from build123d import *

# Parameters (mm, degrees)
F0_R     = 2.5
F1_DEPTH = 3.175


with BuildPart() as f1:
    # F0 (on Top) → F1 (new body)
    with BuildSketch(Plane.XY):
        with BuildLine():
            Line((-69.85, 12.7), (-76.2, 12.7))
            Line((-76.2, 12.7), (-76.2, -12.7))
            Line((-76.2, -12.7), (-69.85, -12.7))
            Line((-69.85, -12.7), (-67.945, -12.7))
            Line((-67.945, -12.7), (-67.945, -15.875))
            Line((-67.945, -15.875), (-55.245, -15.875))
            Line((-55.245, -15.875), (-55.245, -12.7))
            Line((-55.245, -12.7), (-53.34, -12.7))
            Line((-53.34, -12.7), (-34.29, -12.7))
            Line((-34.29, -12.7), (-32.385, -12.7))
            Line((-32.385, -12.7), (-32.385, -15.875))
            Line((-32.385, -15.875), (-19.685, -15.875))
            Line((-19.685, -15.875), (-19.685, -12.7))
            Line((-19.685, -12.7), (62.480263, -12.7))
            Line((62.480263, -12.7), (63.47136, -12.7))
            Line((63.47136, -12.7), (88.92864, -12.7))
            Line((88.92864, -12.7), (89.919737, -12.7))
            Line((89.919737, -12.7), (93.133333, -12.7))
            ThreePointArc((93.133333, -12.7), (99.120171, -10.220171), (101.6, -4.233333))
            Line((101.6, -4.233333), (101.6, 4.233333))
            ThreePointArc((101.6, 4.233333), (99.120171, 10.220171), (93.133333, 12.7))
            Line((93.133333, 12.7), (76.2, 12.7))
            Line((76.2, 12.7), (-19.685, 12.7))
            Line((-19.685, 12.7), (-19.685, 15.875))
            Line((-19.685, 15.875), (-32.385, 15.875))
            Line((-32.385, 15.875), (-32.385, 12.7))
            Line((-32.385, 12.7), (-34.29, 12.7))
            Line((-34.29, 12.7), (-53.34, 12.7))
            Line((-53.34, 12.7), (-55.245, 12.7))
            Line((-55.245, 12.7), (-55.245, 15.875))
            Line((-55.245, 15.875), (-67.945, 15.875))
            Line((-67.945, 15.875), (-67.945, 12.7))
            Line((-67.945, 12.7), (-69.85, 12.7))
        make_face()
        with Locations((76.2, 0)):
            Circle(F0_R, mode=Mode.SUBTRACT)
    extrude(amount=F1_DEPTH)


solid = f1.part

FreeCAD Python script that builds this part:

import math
import FreeCAD as App
import Part
import Sketcher
Q = App.Units.Quantity

doc = App.newDocument("Part")
params = doc.addObject("Spreadsheet::Sheet", "Params")
for row, (alias, value) in enumerate([
    ("sketch1_height", "1 in"),
    ("sketch1_width", "0.5 in"),
    ("sketch1_width2", "0.9 in"),
    ("sketch1_width3", "0.325 in"),
    ("sketch1_height2", "0.125 in"),
    ("pad1_length", "0.125 in"),
], start=1):
    params.set(f"A{row}", alias)
    params.set(f"B{row}", "=" + value)
    params.setAlias(f"B{row}", alias)

body = doc.addObject("PartDesign::Body", "Body")

# Sketch on XY plane
sketch1 = body.newObject("Sketcher::SketchObject", "Sketch")
sketch1.AttachmentSupport = (doc.getObject("XY_Plane"), [""])
sketch1.MapMode = "FlatFace"
sketch1.addGeometry([
    Part.LineSegment(App.Vector(-76.2, 12.7, 0), App.Vector(-76.2, -12.7, 0)),  # 0
    Part.LineSegment(App.Vector(-76.2, -12.7, 0), App.Vector(-67.9, -12.7, 0)),  # 1
    Part.LineSegment(App.Vector(-67.9, -12.7, 0), App.Vector(-67.9, -15.9, 0)),  # 2
    Part.LineSegment(App.Vector(-67.9, -15.9, 0), App.Vector(-55.2, -15.9, 0)),  # 3
    Part.LineSegment(App.Vector(-55.2, -15.9, 0), App.Vector(-55.2, -12.7, 0)),  # 4
    Part.LineSegment(App.Vector(-55.2, -12.7, 0), App.Vector(-32.4, -12.7, 0)),  # 5
    Part.LineSegment(App.Vector(-32.4, -12.7, 0), App.Vector(-32.4, -15.9, 0)),  # 6
    Part.LineSegment(App.Vector(-32.4, -15.9, 0), App.Vector(-19.7, -15.9, 0)),  # 7
    Part.LineSegment(App.Vector(-19.7, -15.9, 0), App.Vector(-19.7, -12.7, 0)),  # 8
    Part.LineSegment(App.Vector(-19.7, -12.7, 0), App.Vector(93.1, -12.7, 0)),  # 9
    Part.ArcOfCircle(Part.Circle(App.Vector(93.1, -4.2, 0), App.Vector(0, 0, 1), 8.5), math.radians(-90), math.radians(0)),  # 10
    Part.LineSegment(App.Vector(101.6, -4.2, 0), App.Vector(101.6, 4.2, 0)),  # 11
    Part.ArcOfCircle(Part.Circle(App.Vector(93.1, 4.2, 0), App.Vector(0, 0, 1), 8.5), math.radians(0), math.radians(90)),  # 12
    Part.LineSegment(App.Vector(93.1, 12.7, 0), App.Vector(-19.7, 12.7, 0)),  # 13
    Part.LineSegment(App.Vector(-19.7, 12.7, 0), App.Vector(-19.7, 15.9, 0)),  # 14
    Part.LineSegment(App.Vector(-19.7, 15.9, 0), App.Vector(-32.4, 15.9, 0)),  # 15
    Part.LineSegment(App.Vector(-32.4, 15.9, 0), App.Vector(-32.4, 12.7, 0)),  # 16
    Part.LineSegment(App.Vector(-32.4, 12.7, 0), App.Vector(-55.2, 12.7, 0)),  # 17
    Part.LineSegment(App.Vector(-55.2, 12.7, 0), App.Vector(-55.2, 15.9, 0)),  # 18
    Part.LineSegment(App.Vector(-55.2, 15.9, 0), App.Vector(-67.9, 15.9, 0)),  # 19
    Part.LineSegment(App.Vector(-67.9, 15.9, 0), App.Vector(-67.9, 12.7, 0)),  # 20
    Part.LineSegment(App.Vector(-67.9, 12.7, 0), App.Vector(-76.2, 12.7, 0)),  # 21
    Part.Circle(App.Vector(76.2, 0, 0), App.Vector(0, 0, 1), 2.5),  # 22
], False)
sketch1.addConstraint([
    Sketcher.Constraint("Coincident", 0, 2, 1, 1),
    Sketcher.Constraint("Coincident", 1, 2, 2, 1),
    Sketcher.Constraint("Coincident", 2, 2, 3, 1),
    Sketcher.Constraint("Coincident", 3, 2, 4, 1),
    Sketcher.Constraint("Coincident", 4, 2, 5, 1),
    Sketcher.Constraint("Coincident", 5, 2, 6, 1),
    Sketcher.Constraint("Coincident", 6, 2, 7, 1),
    Sketcher.Constraint("Coincident", 7, 2, 8, 1),
    Sketcher.Constraint("Coincident", 8, 2, 9, 1),
    Sketcher.Constraint("Tangent", 9, 2, 10, 1),
    Sketcher.Constraint("Tangent", 10, 2, 11, 1),
    Sketcher.Constraint("Tangent", 11, 2, 12, 1),
    Sketcher.Constraint("Tangent", 12, 2, 13, 1),
    Sketcher.Constraint("Coincident", 13, 2, 14, 1),
    Sketcher.Constraint("Coincident", 14, 2, 15, 1),
    Sketcher.Constraint("Coincident", 15, 2, 16, 1),
    Sketcher.Constraint("Coincident", 16, 2, 17, 1),
    Sketcher.Constraint("Coincident", 17, 2, 18, 1),
    Sketcher.Constraint("Coincident", 18, 2, 19, 1),
    Sketcher.Constraint("Coincident", 19, 2, 20, 1),
    Sketcher.Constraint("Coincident", 20, 2, 21, 1),
    Sketcher.Constraint("Coincident", 21, 2, 0, 1),
    Sketcher.Constraint("Vertical", 0),
    Sketcher.Constraint("Horizontal", 1),
    Sketcher.Constraint("Vertical", 2),
    Sketcher.Constraint("Horizontal", 3),
    Sketcher.Constraint("Vertical", 4),
    Sketcher.Constraint("Horizontal", 5),
    Sketcher.Constraint("Vertical", 6),
    Sketcher.Constraint("Horizontal", 7),
    Sketcher.Constraint("Vertical", 8),
    Sketcher.Constraint("Horizontal", 9),
    Sketcher.Constraint("Vertical", 11),
    Sketcher.Constraint("Horizontal", 13),
    Sketcher.Constraint("Vertical", 14),
    Sketcher.Constraint("Horizontal", 15),
    Sketcher.Constraint("Vertical", 16),
    Sketcher.Constraint("Horizontal", 17),
    Sketcher.Constraint("Vertical", 18),
    Sketcher.Constraint("Horizontal", 19),
    Sketcher.Constraint("Vertical", 20),
    Sketcher.Constraint("Horizontal", 21),
    Sketcher.Constraint("Equal", 10, 12),
    Sketcher.Constraint("Symmetric", 8, 2, 13, 2, -1),
    Sketcher.Constraint("Symmetric", 6, 2, 15, 2, -1),
    Sketcher.Constraint("Symmetric", 4, 2, 17, 2, -1),
    Sketcher.Constraint("Symmetric", 2, 2, 19, 2, -1),
    Sketcher.Constraint("PointOnObject", 22, 3, -1),
    Sketcher.Constraint("Horizontal", 1, 2, 4, 2),
    Sketcher.Constraint("Horizontal", 3, 2, 6, 2),
    Sketcher.Constraint("Horizontal", 5, 2, 8, 2),
    Sketcher.Constraint("Horizontal", 17, 2, 20, 2),
    Sketcher.Constraint("Equal", 3, 7),
    Sketcher.Constraint("DistanceY", 0, 2, 0, 1, Q("1 in")),
    Sketcher.Constraint("DistanceX", 3, 1, 3, 2, Q("0.5 in")),
    Sketcher.Constraint("DistanceX", 5, 1, 5, 2, Q("0.9 in")),
    Sketcher.Constraint("DistanceX", -1, 1, 22, 3, Q("3 in")),
    Sketcher.Constraint("DistanceX", 0, 2, -1, 1, Q("3 in")),
    Sketcher.Constraint("DistanceX", -1, 1, 10, 2, Q("4 in")),
    Sketcher.Constraint("Diameter", 22, Q("5 mm")),
    Sketcher.Constraint("DistanceX", 1, 1, 1, 2, Q("0.325 in")),
    Sketcher.Constraint("DistanceY", 2, 2, 2, 1, Q("0.125 in")),
    Sketcher.Constraint("Radius", 10, Q("8.466666 mm")),
])
sketch1.setExpression("Constraints[53]", "Params.sketch1_height")
sketch1.setExpression("Constraints[54]", "Params.sketch1_width")
sketch1.setExpression("Constraints[55]", "Params.sketch1_width2")
sketch1.setExpression("Constraints[60]", "Params.sketch1_width3")
sketch1.setExpression("Constraints[61]", "Params.sketch1_height2")
pad1 = body.newObject("PartDesign::Pad", "Pad")
pad1.Profile = sketch1
pad1.setExpression("Length", "Params.pad1_length")

doc.recompute()
